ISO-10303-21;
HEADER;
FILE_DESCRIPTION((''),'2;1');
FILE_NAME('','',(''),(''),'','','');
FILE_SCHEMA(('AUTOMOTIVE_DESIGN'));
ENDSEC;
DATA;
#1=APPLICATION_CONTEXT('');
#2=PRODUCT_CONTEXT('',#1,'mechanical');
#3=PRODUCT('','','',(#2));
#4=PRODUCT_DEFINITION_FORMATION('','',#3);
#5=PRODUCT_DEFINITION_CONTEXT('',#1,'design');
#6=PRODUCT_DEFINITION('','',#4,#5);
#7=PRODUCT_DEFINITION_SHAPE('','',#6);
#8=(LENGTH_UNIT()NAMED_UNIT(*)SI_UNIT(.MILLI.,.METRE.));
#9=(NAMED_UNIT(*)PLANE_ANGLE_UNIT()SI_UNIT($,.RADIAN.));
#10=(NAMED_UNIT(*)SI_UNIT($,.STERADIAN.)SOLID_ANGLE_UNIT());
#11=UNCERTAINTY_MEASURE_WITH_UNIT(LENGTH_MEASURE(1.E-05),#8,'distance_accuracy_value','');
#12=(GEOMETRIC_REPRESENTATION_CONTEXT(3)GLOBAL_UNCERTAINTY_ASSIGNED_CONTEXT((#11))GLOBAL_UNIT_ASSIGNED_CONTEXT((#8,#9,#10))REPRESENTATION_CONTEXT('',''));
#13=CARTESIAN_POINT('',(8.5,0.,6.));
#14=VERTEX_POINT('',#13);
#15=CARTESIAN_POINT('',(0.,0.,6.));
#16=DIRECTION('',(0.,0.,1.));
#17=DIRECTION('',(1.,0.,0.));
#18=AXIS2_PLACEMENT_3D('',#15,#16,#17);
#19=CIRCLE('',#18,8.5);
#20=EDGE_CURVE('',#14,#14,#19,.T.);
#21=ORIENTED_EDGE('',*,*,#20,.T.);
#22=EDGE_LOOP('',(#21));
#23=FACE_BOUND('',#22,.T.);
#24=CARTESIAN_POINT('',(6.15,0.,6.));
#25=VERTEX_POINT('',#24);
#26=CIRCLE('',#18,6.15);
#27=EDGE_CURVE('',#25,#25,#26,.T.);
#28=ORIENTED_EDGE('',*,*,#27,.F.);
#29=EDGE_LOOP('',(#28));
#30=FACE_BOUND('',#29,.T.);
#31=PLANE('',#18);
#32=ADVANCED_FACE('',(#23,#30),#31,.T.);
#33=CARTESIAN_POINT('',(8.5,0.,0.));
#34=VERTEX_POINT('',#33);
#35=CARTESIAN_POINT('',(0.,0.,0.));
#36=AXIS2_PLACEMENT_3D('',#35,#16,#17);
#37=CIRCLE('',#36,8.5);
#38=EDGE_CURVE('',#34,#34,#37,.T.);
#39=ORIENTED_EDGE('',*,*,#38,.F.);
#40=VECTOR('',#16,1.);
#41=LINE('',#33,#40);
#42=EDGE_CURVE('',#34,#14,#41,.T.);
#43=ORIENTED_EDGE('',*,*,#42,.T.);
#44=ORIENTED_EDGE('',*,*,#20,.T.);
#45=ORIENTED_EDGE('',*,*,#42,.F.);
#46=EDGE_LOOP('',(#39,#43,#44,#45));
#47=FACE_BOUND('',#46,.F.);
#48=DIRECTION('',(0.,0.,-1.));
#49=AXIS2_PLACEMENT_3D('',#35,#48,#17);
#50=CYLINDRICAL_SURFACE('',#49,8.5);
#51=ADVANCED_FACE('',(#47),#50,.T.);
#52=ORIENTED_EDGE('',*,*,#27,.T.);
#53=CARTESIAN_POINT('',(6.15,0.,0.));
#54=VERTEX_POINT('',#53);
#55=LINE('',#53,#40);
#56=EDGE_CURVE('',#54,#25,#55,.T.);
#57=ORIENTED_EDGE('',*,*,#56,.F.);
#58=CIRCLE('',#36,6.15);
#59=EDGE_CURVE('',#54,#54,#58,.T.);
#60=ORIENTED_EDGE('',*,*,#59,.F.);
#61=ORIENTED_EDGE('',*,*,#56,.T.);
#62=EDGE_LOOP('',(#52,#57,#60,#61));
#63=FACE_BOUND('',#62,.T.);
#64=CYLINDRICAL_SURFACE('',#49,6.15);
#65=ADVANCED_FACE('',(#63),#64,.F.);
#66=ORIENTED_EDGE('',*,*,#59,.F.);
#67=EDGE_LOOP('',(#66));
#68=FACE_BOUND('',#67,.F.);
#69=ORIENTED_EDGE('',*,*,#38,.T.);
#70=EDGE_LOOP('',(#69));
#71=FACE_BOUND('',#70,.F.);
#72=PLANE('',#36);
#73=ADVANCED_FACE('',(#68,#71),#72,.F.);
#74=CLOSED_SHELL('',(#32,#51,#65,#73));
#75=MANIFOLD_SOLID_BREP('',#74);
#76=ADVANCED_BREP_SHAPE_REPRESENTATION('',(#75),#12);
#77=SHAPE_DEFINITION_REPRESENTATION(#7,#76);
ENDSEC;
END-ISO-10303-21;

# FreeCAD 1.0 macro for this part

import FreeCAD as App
import Part
import Sketcher

V = App.Vector
Q = App.Units.Quantity

doc = App.newDocument("Part")
params = doc.addObject("Spreadsheet::Sheet", "Params")
for row, (alias, value) in enumerate([
    ("sketch1_diameter", "17 mm"),
    ("sketch1_diameter2", "12.3 mm"),
    ("pad1_length", "6 mm"),
], start=1):
    params.set(f"A{row}", alias)
    params.set(f"B{row}", "=" + value)
    params.setAlias(f"B{row}", alias)

body = doc.addObject("PartDesign::Body", "Body")

# Sketch on XY plane
sketch1 = body.newObject("Sketcher::SketchObject", "Sketch")
sketch1.AttachmentSupport = (doc.getObject("XY_Plane"), [""])
sketch1.MapMode = "FlatFace"
sketch1.addGeometry(Part.Circle(V(0, 0, 0), V(0, 0, 1), 8), False)
sketch1.addGeometry(Part.Circle(V(0, 0, 0), V(0, 0, 1), 6), False)
sketch1.addConstraint(Sketcher.Constraint("Coincident", 0, 3, -1, 1))
sketch1.addConstraint(Sketcher.Constraint("Coincident", 1, 3, -1, 1))
sketch1.addConstraint(Sketcher.Constraint("Diameter", 0, Q("17 mm")))
sketch1.addConstraint(Sketcher.Constraint("Diameter", 1, Q("12.3 mm")))
sketch1.setExpression("Constraints[2]", "Params.sketch1_diameter")
sketch1.setExpression("Constraints[3]", "Params.sketch1_diameter2")
pad1 = body.newObject("PartDesign::Pad", "Pad")
pad1.Profile = sketch1
pad1.setExpression("Length", "Params.pad1_length")

doc.recompute()
